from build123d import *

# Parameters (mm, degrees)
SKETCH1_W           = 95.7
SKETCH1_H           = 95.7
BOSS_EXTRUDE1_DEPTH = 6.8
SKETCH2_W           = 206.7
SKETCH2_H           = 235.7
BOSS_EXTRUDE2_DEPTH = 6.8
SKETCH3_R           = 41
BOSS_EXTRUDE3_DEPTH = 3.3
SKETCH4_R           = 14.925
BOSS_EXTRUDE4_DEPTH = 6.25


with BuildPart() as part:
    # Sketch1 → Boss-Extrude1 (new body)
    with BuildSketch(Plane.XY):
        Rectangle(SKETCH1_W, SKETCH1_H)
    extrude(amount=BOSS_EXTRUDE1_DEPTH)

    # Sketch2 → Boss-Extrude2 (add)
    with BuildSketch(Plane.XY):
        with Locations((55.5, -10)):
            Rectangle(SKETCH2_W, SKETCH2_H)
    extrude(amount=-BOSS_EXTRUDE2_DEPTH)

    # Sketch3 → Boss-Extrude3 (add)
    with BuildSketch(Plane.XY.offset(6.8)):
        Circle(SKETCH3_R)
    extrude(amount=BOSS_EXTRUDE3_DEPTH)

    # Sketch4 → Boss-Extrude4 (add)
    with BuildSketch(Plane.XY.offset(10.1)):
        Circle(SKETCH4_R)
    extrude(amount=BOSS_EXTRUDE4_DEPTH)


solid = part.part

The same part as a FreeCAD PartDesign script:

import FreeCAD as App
import Part
import Sketcher
from FreeCAD import Vector
Q = App.Units.Quantity


def add_polygon(sketch, points):
    """Adds a closed chain of lines whose ends are joined by coincident constraints."""
    first, n = sketch.GeometryCount, len(points)
    for a, b in zip(points, points[1:] + points[:1]):
        sketch.addGeometry(Part.LineSegment(App.Vector(*a, 0), App.Vector(*b, 0)), False)
    for i in range(n):
        sketch.addConstraint(Sketcher.Constraint("Coincident", first + i, 2, first + (i + 1) % n, 1))

doc = App.newDocument("Part")
body = doc.addObject("PartDesign::Body", "Body")

# Sketch on XY plane
sketch1 = body.newObject("Sketcher::SketchObject", "Sketch")
sketch1.AttachmentSupport = (doc.getObject("XY_Plane"), [""])
sketch1.MapMode = "FlatFace"
add_polygon(sketch1, [(-48, 48), (-48, -48), (48, -48), (48, 48)])  # lines 0-3
sketch1.addConstraint(Sketcher.Constraint("Vertical", 0))
sketch1.addConstraint(Sketcher.Constraint("Horizontal", 1))
sketch1.addConstraint(Sketcher.Constraint("Vertical", 2))
sketch1.addConstraint(Sketcher.Constraint("Horizontal", 3))
sketch1.addConstraint(Sketcher.Constraint("Symmetric", 0, 2, 2, 2, -1, 1))
sketch1.addConstraint(Sketcher.Constraint("Equal", 3, 0))
sketch1.addConstraint(Sketcher.Constraint("DistanceX", 1, 1, 1, 2, Q("95.7 mm")))
pad1 = body.newObject("PartDesign::Pad", "Pad")
pad1.Profile = sketch1
pad1.Length = 6.8

# Sketch on XY plane
sketch2 = body.newObject("Sketcher::SketchObject", "Sketch001")
sketch2.AttachmentSupport = (doc.getObject("XY_Plane"), [""])
sketch2.MapMode = "FlatFace"
add_polygon(sketch2, [(-48, 108), (-48, -128), (159, -128), (159, 108)])  # lines 0-3
sketch2.addConstraint(Sketcher.Constraint("Vertical", 0))
sketch2.addConstraint(Sketcher.Constraint("Horizontal", 1))
sketch2.addConstraint(Sketcher.Constraint("Vertical", 2))
sketch2.addConstraint(Sketcher.Constraint("Horizontal", 3))
sketch2.addConstraint(Sketcher.Constraint("DistanceX", 1, 1, 1, 2, Q("206.7 mm")))
sketch2.addConstraint(Sketcher.Constraint("DistanceY", 0, 2, 0, 1, Q("235.7 mm")))
sketch2.addConstraint(Sketcher.Constraint("DistanceX", 0, 2, -1, 1, Q("47.85 mm")))
sketch2.addConstraint(Sketcher.Constraint("DistanceY", 0, 2, -1, 1, Q("127.85 mm")))
pad2 = body.newObject("PartDesign::Pad", "Pad001")
pad2.Profile = sketch2
pad2.Length = 6.8
pad2.Reversed = True

# Sketch on XY plane
sketch3 = body.newObject("Sketcher::SketchObject", "Sketch002")
sketch3.AttachmentSupport = (doc.getObject("XY_Plane"), [""])
sketch3.MapMode = "FlatFace"
sketch3.AttachmentOffset = App.Placement(Vector(0, 0, 6.8), App.Rotation())
sketch3.addGeometry(Part.Circle(Vector(0, 0, 0), Vector(0, 0, 1), 41), False)
sketch3.addConstraint(Sketcher.Constraint("Coincident", 0, 3, -1, 1))
sketch3.addConstraint(Sketcher.Constraint("Diameter", 0, Q("82 mm")))
pad3 = body.newObject("PartDesign::Pad", "Pad002")
pad3.Profile = sketch3
pad3.Length = 3.3

# Sketch on XY plane
sketch4 = body.newObject("Sketcher::SketchObject", "Sketch003")
sketch4.AttachmentSupport = (doc.getObject("XY_Plane"), [""])
sketch4.MapMode = "FlatFace"
sketch4.AttachmentOffset = App.Placement(Vector(0, 0, 10.1), App.Rotation())
sketch4.addGeometry(Part.Circle(Vector(0, 0, 0), Vector(0, 0, 1), 15), False)
sketch4.addConstraint(Sketcher.Constraint("Coincident", 0, 3, -1, 1))
sketch4.addConstraint(Sketcher.Constraint("Diameter", 0, Q("29.85 mm")))
pad4 = body.newObject("PartDesign::Pad", "Pad003")
pad4.Profile = sketch4
pad4.Length = 6.25

doc.recompute()
